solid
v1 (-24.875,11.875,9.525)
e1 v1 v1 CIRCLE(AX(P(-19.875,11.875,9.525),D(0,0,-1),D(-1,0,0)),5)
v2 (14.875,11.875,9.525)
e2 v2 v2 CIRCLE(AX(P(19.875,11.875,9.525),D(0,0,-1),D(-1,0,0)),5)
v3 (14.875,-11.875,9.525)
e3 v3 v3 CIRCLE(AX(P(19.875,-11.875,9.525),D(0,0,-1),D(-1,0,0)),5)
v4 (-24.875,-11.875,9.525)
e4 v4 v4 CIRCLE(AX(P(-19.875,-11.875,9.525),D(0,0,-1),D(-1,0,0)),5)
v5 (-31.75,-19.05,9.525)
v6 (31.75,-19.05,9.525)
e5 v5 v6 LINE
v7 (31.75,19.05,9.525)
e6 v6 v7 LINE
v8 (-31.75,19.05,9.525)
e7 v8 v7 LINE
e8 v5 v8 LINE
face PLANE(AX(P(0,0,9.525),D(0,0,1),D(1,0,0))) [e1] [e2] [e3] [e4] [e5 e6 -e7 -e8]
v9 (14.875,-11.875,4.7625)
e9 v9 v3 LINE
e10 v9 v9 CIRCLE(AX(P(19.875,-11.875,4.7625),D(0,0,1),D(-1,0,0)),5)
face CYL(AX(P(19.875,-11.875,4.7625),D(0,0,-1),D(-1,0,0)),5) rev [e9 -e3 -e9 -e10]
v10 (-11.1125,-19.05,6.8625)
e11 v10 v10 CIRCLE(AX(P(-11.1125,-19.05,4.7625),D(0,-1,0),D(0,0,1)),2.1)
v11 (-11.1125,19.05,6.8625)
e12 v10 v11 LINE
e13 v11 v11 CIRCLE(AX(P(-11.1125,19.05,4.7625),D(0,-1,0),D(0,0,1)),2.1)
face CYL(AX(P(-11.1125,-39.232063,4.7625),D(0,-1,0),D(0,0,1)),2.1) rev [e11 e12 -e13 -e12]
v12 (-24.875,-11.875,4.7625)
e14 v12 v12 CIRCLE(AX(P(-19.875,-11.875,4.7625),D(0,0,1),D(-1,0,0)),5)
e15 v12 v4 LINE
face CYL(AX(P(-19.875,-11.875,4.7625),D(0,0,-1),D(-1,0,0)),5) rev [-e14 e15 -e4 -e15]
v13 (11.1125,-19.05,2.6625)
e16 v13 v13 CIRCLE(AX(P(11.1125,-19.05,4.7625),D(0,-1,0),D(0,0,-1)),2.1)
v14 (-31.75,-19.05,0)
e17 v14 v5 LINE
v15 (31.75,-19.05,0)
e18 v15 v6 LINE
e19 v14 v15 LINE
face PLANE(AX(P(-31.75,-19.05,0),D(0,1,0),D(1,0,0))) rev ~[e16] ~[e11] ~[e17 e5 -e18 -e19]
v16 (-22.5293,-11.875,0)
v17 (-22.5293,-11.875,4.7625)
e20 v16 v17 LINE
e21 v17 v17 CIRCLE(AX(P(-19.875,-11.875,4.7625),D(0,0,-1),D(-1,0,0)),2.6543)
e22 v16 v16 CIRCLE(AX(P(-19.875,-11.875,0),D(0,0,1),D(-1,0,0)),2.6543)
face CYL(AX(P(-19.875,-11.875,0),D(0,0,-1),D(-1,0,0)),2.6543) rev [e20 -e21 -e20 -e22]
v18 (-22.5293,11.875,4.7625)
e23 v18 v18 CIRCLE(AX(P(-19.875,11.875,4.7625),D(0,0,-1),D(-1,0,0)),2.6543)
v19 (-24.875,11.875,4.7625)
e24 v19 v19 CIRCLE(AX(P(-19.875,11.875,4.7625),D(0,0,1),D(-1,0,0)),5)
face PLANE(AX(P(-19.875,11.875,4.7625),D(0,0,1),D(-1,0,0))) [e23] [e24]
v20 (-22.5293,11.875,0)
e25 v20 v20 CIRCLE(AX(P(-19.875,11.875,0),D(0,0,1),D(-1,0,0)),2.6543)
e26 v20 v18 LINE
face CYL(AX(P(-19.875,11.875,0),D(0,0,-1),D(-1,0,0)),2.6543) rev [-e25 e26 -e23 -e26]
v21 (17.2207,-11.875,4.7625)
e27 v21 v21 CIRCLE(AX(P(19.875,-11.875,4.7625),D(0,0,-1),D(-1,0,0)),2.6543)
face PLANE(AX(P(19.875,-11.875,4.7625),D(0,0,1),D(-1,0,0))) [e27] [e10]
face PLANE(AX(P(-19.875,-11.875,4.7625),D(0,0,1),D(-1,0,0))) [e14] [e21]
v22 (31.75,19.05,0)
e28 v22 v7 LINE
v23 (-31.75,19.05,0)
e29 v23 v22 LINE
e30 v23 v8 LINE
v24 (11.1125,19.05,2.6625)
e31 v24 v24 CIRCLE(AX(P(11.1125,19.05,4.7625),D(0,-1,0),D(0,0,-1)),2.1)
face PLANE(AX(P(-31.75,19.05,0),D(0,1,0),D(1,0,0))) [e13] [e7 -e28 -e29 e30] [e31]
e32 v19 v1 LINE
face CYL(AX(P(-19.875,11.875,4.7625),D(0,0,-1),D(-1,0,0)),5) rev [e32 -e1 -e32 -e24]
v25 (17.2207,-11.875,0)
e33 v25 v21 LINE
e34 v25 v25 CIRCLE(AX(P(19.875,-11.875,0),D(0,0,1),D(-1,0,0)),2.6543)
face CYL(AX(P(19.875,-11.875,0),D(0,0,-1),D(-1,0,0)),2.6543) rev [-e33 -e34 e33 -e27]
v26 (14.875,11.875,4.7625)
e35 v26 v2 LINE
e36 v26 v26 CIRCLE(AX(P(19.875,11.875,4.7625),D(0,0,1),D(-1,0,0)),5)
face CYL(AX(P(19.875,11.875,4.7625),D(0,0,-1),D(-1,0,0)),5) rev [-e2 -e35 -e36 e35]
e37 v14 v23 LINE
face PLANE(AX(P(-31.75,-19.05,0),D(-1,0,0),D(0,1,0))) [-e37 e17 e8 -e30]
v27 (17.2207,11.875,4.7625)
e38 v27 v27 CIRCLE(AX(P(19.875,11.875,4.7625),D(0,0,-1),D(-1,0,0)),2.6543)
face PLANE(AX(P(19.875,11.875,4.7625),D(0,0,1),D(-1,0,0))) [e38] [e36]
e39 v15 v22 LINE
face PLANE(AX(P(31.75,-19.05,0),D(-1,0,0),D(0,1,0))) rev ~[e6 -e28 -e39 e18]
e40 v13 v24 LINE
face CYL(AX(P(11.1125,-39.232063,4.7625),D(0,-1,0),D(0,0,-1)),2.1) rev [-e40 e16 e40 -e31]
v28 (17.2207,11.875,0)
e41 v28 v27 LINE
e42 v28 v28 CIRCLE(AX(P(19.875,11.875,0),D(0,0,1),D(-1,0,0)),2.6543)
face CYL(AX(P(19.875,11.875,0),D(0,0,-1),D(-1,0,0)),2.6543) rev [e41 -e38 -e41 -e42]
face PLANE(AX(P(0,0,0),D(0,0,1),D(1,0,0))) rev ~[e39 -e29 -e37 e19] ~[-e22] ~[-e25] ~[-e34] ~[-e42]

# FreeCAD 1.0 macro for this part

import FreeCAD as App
import Part
import Sketcher

V = App.Vector
Q = App.Units.Quantity

doc = App.newDocument("Part")
body = doc.addObject("PartDesign::Body", "Body")

sketch1 = body.newObject("Sketcher::SketchObject", "Sketch")
sketch1.AttachmentSupport = (doc.getObject("XY_Plane"), [""])
sketch1.MapMode = "FlatFace"
sketch1.addGeometry([
    Part.LineSegment(V(-31.8, 19.1, 0), V(-31.8, -19.1, 0)),
    Part.LineSegment(V(-31.8, -19.1, 0), V(31.8, -19.1, 0)),
    Part.LineSegment(V(31.8, -19.1, 0), V(31.8, 19.1, 0)),
    Part.LineSegment(V(31.8, 19.1, 0), V(-31.8, 19.1, 0)),
    Part.Circle(V(-19.9, -11.9, 0), V(0, 0, 1), 2.7),
    Part.Circle(V(19.9, -11.9, 0), V(0, 0, 1), 2.7),
    Part.Circle(V(-19.9, 11.9, 0), V(0, 0, 1), 2.7),
    Part.Circle(V(19.9, 11.9, 0), V(0, 0, 1), 2.7),
], False)
sketch1.addConstraint([
    Sketcher.Constraint("Coincident", 0, 2, 1, 1),
    Sketcher.Constraint("Coincident", 1, 2, 2, 1),
    Sketcher.Constraint("Coincident", 2, 2, 3, 1),
    Sketcher.Constraint("Coincident", 3, 2, 0, 1),
    Sketcher.Constraint("Vertical", 0),
    Sketcher.Constraint("Horizontal", 1),
    Sketcher.Constraint("Vertical", 2),
    Sketcher.Constraint("Horizontal", 3),
    Sketcher.Constraint("Equal", 4, 5),
    Sketcher.Constraint("Equal", 5, 6),
    Sketcher.Constraint("Equal", 6, 7),
    Sketcher.Constraint("Symmetric", 5, 3, 6, 3, -1, 1),
    Sketcher.Constraint("Symmetric", 4, 3, 7, 3, -1, 1),
    Sketcher.Constraint("Symmetric", 0, 2, 2, 2, -1, 1),
    Sketcher.Constraint("Symmetric", 4, 3, 5, 3, -2),
    Sketcher.Constraint("Diameter", 4, Q("0.209 in")),
    Sketcher.Constraint("DistanceX", 1, 1, 1, 2, Q("2.5 in")),
    Sketcher.Constraint("DistanceY", 0, 2, 0, 1, Q("1.5 in")),
    Sketcher.Constraint("DistanceX", 4, 3, -1, 1, Q("19.875 mm")),
    Sketcher.Constraint("DistanceY", 4, 3, -1, 1, Q("11.875 mm")),
])
pad1 = body.newObject("PartDesign::Pad", "Pad")
pad1.Profile = sketch1
pad1.Length = Q("0.375 in")

sketch2 = body.newObject("Sketcher::SketchObject", "Sketch001")
sketch2.AttachmentSupport = (doc.getObject("XY_Plane"), [""])
sketch2.MapMode = "FlatFace"
sketch2.AttachmentOffset = App.Placement(V(0, 0, 0.375 * 25.4), App.Rotation())
sketch2.addGeometry([
    Part.Circle(V(20, -12, 0), V(0, 0, 1), 5),
    Part.Circle(V(20, 12, 0), V(0, 0, 1), 5),
    Part.Circle(V(-20, 12, 0), V(0, 0, 1), 5),
    Part.Circle(V(-20, -12, 0), V(0, 0, 1), 5),
], False)
sketch2.addConstraint([
    Sketcher.Constraint("Equal", 0, 1),
    Sketcher.Constraint("Equal", 1, 2),
    Sketcher.Constraint("Equal", 2, 3),
    Sketcher.Constraint("Symmetric", 0, 3, 2, 3, -1, 1),
    Sketcher.Constraint("Symmetric", 1, 3, 3, 3, -1, 1),
    Sketcher.Constraint("Symmetric", 1, 3, 2, 3, -2),
    Sketcher.Constraint("Diameter", 0, Q("10 mm")),
    Sketcher.Constraint("DistanceX", -1, 1, 0, 3, Q("19.875 mm")),
    Sketcher.Constraint("DistanceY", 0, 3, -1, 1, Q("11.875 mm")),
])
pocket1 = body.newObject("PartDesign::Pocket", "Pocket")
pocket1.Profile = sketch2
pocket1.Type = "TwoLengths"
pocket1.Length = 39.232063
pocket1.Length2 = Q("0.1875 in")
pocket1.Reversed = True

sketch3 = body.newObject("Sketcher::SketchObject", "Sketch002")
sketch3.AttachmentSupport = (doc.getObject("XZ_Plane"), [""])
sketch3.MapMode = "FlatFace"
sketch3.addGeometry([
    Part.Circle(V(-11.1, 4.8, 0), V(0, 0, 1), 2.1),
    Part.Circle(V(11.1, 4.8, 0), V(0, 0, 1), 2.1),
], False)
sketch3.addConstraint([
    Sketcher.Constraint("Equal", 0, 1),
    Sketcher.Constraint("Symmetric", 0, 3, 1, 3, -2),
    Sketcher.Constraint("Diameter", 0, Q("4.2 mm")),
    Sketcher.Constraint("DistanceX", 0, 3, -1, 1, Q("0.4375 in")),
    Sketcher.Constraint("DistanceY", -1, 1, 0, 3, Q("0.1875 in")),
])
pocket2 = body.newObject("PartDesign::Pocket", "Pocket001")
pocket2.Profile = sketch3
pocket2.Type = "ThroughAll"
pocket2.Midplane = True

doc.recompute()
